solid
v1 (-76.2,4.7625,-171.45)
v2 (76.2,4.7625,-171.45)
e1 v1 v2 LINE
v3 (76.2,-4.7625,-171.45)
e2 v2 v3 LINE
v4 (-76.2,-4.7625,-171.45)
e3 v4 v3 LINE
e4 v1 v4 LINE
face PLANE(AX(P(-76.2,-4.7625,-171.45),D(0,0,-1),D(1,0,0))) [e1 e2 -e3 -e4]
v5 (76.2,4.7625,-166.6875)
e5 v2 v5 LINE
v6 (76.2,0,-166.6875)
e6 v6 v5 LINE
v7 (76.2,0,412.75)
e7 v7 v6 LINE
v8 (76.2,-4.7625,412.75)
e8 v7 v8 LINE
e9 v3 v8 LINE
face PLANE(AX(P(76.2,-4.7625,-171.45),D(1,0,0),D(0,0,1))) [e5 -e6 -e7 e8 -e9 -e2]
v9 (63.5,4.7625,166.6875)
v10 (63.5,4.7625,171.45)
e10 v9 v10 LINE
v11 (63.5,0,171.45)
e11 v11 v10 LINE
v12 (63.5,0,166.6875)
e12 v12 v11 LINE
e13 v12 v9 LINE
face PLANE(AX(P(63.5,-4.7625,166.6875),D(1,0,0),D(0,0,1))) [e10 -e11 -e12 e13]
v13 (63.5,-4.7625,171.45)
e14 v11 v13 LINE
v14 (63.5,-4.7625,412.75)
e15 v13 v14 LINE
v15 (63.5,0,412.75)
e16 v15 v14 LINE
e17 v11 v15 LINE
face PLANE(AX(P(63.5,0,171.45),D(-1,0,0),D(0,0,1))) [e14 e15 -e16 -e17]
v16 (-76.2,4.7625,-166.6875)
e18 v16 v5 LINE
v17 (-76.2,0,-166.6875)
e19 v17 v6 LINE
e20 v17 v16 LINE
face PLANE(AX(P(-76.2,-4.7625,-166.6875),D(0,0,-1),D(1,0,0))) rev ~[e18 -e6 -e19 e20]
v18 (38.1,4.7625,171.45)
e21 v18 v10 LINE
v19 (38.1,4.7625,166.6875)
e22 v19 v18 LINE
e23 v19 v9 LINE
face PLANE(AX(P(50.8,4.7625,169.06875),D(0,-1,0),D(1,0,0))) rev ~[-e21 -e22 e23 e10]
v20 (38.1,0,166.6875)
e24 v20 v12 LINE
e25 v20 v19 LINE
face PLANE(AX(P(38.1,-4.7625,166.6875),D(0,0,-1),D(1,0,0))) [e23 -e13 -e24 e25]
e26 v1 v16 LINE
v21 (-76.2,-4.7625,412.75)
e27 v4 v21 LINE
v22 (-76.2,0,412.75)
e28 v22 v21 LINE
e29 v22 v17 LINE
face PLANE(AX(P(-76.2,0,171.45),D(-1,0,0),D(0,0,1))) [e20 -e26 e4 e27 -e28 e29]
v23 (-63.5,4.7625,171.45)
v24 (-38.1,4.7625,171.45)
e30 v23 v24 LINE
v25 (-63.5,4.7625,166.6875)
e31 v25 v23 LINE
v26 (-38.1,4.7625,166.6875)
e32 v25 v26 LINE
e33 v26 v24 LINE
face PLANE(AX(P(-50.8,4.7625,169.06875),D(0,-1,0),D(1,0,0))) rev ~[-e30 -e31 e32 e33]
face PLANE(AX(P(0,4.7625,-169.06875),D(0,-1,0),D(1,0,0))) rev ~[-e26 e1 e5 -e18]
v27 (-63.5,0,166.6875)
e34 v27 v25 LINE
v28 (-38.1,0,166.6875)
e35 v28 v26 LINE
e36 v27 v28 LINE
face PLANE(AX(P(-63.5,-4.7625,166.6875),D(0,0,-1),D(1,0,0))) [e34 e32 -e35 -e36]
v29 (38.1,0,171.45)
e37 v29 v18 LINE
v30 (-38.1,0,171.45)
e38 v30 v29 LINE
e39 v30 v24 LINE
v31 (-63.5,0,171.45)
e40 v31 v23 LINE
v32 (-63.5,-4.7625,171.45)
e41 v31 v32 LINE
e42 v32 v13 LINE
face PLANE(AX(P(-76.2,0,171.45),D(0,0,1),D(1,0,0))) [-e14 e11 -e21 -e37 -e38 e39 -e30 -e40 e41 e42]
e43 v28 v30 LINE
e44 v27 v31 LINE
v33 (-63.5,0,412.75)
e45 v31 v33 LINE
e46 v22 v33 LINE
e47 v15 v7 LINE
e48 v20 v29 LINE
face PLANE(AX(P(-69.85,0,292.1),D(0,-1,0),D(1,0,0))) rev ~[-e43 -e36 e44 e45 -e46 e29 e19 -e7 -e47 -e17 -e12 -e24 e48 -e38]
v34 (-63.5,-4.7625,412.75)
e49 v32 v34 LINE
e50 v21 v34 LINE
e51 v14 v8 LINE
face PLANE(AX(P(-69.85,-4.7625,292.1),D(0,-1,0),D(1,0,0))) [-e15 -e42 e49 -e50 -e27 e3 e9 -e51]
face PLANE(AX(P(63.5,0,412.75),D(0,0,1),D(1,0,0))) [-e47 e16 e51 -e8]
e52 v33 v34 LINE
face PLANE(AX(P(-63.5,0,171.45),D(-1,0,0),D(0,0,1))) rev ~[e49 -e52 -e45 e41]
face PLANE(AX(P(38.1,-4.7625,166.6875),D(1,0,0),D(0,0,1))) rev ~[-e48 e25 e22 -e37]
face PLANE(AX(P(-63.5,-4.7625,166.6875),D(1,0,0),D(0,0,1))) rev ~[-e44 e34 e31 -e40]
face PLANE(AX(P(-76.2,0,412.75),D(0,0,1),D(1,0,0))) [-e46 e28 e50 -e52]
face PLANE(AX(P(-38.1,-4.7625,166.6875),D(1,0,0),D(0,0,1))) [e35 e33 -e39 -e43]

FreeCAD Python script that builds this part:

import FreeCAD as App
import Part
import Sketcher
Q = App.Units.Quantity

doc = App.newDocument("Part")
body = doc.addObject("PartDesign::Body", "Body")

sketch1 = doc.addObject("Sketcher::SketchObject", "Sketch")
body.addObject(sketch1)
sketch1.AttachmentSupport = (doc.XZ_Plane, [""])
sketch1.MapMode = "FlatFace"
sketch1.addGeometry([
    Part.LineSegment(App.Vector(-76, 171, 0), App.Vector(-76, -171, 0)),
    Part.LineSegment(App.Vector(-76, -171, 0), App.Vector(76, -171, 0)),
    Part.LineSegment(App.Vector(76, -171, 0), App.Vector(76, 171, 0)),
    Part.LineSegment(App.Vector(76, 171, 0), App.Vector(-76, 171, 0)),
], False)
sketch1.addConstraint([
    Sketcher.Constraint("Coincident", 0, 2, 1, 1),
    Sketcher.Constraint("Coincident", 1, 2, 2, 1),
    Sketcher.Constraint("Coincident", 2, 2, 3, 1),
    Sketcher.Constraint("Coincident", 3, 2, 0, 1),
    Sketcher.Constraint("Vertical", 0),
    Sketcher.Constraint("Horizontal", 1),
    Sketcher.Constraint("Vertical", 2),
    Sketcher.Constraint("Horizontal", 3),
    Sketcher.Constraint("Symmetric", 0, 2, 2, 2, -1, 1),
    Sketcher.Constraint("DistanceX", 1, 1, 1, 2, Q("6 in")),
    Sketcher.Constraint("DistanceY", 0, 2, 0, 1, Q("13.5 in")),
])
pad1 = doc.addObject("PartDesign::Pad", "Pad")
body.addObject(pad1)
pad1.Profile = sketch1
pad1.Length = Q("0.1875 in")

sketch2 = doc.addObject("Sketcher::SketchObject", "Sketch001")
body.addObject(sketch2)
sketch2.AttachmentSupport = (doc.XZ_Plane, [""])
sketch2.MapMode = "FlatFace"
sketch2.AttachmentOffset = App.Placement(App.Vector(0, 0, 0.1875 * 25.4), App.Rotation())
sketch2.addGeometry([
    Part.LineSegment(App.Vector(-63.5, 171.4, 0), App.Vector(-63.5, 166.7, 0)),
    Part.LineSegment(App.Vector(-63.5, 166.7, 0), App.Vector(-38.1, 166.7, 0)),
    Part.LineSegment(App.Vector(-38.1, 166.7, 0), App.Vector(-38.1, 171.4, 0)),
    Part.LineSegment(App.Vector(-38.1, 171.4, 0), App.Vector(-63.5, 171.4, 0)),
    Part.LineSegment(App.Vector(38.1, 171.4, 0), App.Vector(38.1, 166.7, 0)),
    Part.LineSegment(App.Vector(38.1, 166.7, 0), App.Vector(63.5, 166.7, 0)),
    Part.LineSegment(App.Vector(63.5, 166.7, 0), App.Vector(63.5, 171.4, 0)),
    Part.LineSegment(App.Vector(63.5, 171.4, 0), App.Vector(38.1, 171.4, 0)),
], False)
sketch2.addConstraint([
    Sketcher.Constraint("Coincident", 0, 2, 1, 1),
    Sketcher.Constraint("Coincident", 1, 2, 2, 1),
    Sketcher.Constraint("Coincident", 2, 2, 3, 1),
    Sketcher.Constraint("Coincident", 3, 2, 0, 1),
    Sketcher.Constraint("Coincident", 4, 2, 5, 1),
    Sketcher.Constraint("Coincident", 5, 2, 6, 1),
    Sketcher.Constraint("Coincident", 6, 2, 7, 1),
    Sketcher.Constraint("Coincident", 7, 2, 4, 1),
    Sketcher.Constraint("Vertical", 0),
    Sketcher.Constraint("Horizontal", 1),
    Sketcher.Constraint("Vertical", 2),
    Sketcher.Constraint("Horizontal", 3),
    Sketcher.Constraint("Vertical", 4),
    Sketcher.Constraint("Horizontal", 5),
    Sketcher.Constraint("Vertical", 6),
    Sketcher.Constraint("Horizontal", 7),
    Sketcher.Constraint("Symmetric", 1, 2, 4, 2, -2),
    Sketcher.Constraint("Symmetric", 3, 2, 6, 2, -2),
    Sketcher.Constraint("DistanceX", 1, 1, 1, 2, Q("1 in")),
    Sketcher.Constraint("DistanceX", 1, 2, 4, 2, Q("3 in")),
    Sketcher.Constraint("DistanceY", 0, 2, 0, 1, Q("0.1875 in")),
    Sketcher.Constraint("DistanceY", -1, 1, 2, 2, Q("6.75 in")),
])
pad2 = doc.addObject("PartDesign::Pad", "Pad001")
body.addObject(pad2)
pad2.Profile = sketch2
pad2.Length = Q("0.375 in")
pad2.Reversed = True

sketch3 = doc.addObject("Sketcher::SketchObject", "Sketch002")
body.addObject(sketch3)
sketch3.AttachmentSupport = (doc.XZ_Plane, [""])
sketch3.MapMode = "FlatFace"
sketch3.AttachmentOffset = App.Placement(App.Vector(0, 0, 0.1875 * 25.4), App.Rotation())
sketch3.addGeometry([
    Part.LineSegment(App.Vector(-76.2, -166.7, 0), App.Vector(-76.2, -171.4, 0)),
    Part.LineSegment(App.Vector(-76.2, -171.4, 0), App.Vector(76.2, -171.4, 0)),
    Part.LineSegment(App.Vector(76.2, -171.4, 0), App.Vector(76.2, -166.7, 0)),
    Part.LineSegment(App.Vector(76.2, -166.7, 0), App.Vector(-76.2, -166.7, 0)),
], False)
sketch3.addConstraint([
    Sketcher.Constraint("Coincident", 0, 2, 1, 1),
    Sketcher.Constraint("Coincident", 1, 2, 2, 1),
    Sketcher.Constraint("Coincident", 2, 2, 3, 1),
    Sketcher.Constraint("Coincident", 3, 2, 0, 1),
    Sketcher.Constraint("Vertical", 0),
    Sketcher.Constraint("Horizontal", 1),
    Sketcher.Constraint("Vertical", 2),
    Sketcher.Constraint("Horizontal", 3),
    Sketcher.Constraint("DistanceX", 1, 1, 1, 2, Q("6 in")),
    Sketcher.Constraint("DistanceX", 0, 2, -1, 1, Q("3 in")),
    Sketcher.Constraint("DistanceY", 0, 2, 0, 1, Q("0.1875 in")),
    Sketcher.Constraint("DistanceY", 0, 2, -1, 1, Q("6.75 in")),
])
pad3 = doc.addObject("PartDesign::Pad", "Pad002")
body.addObject(pad3)
pad3.Profile = sketch3
pad3.Length = Q("0.375 in")
pad3.Reversed = True

sketch4 = doc.addObject("Sketcher::SketchObject", "Sketch003")
body.addObject(sketch4)
sketch4.AttachmentSupport = (doc.XZ_Plane, [""])
sketch4.MapMode = "FlatFace"
sketch4.addGeometry([
    Part.LineSegment(App.Vector(-76, 413, 0), App.Vector(-76, 171, 0)),
    Part.LineSegment(App.Vector(-76, 171, 0), App.Vector(-64, 171, 0)),
    Part.LineSegment(App.Vector(-64, 171, 0), App.Vector(-64, 413, 0)),
    Part.LineSegment(App.Vector(-64, 413, 0), App.Vector(-76, 413, 0)),
    Part.LineSegment(App.Vector(64, 413, 0), App.Vector(64, 171, 0)),
    Part.LineSegment(App.Vector(64, 171, 0), App.Vector(76, 171, 0)),
    Part.LineSegment(App.Vector(76, 171, 0), App.Vector(76, 413, 0)),
    Part.LineSegment(App.Vector(76, 413, 0), App.Vector(64, 413, 0)),
], False)
sketch4.addConstraint([
    Sketcher.Constraint("Coincident", 0, 2, 1, 1),
    Sketcher.Constraint("Coincident", 1, 2, 2, 1),
    Sketcher.Constraint("Coincident", 2, 2, 3, 1),
    Sketcher.Constraint("Coincident", 3, 2, 0, 1),
    Sketcher.Constraint("Coincident", 4, 2, 5, 1),
    Sketcher.Constraint("Coincident", 5, 2, 6, 1),
    Sketcher.Constraint("Coincident", 6, 2, 7, 1),
    Sketcher.Constraint("Coincident", 7, 2, 4, 1),
    Sketcher.Constraint("Vertical", 0),
    Sketcher.Constraint("Horizontal", 1),
    Sketcher.Constraint("Vertical", 2),
    Sketcher.Constraint("Horizontal", 3),
    Sketcher.Constraint("Vertical", 4),
    Sketcher.Constraint("Horizontal", 5),
    Sketcher.Constraint("Vertical", 6),
    Sketcher.Constraint("Horizontal", 7),
    Sketcher.Constraint("Symmetric", 1, 2, 4, 2, -2),
    Sketcher.Constraint("Symmetric", 3, 2, 6, 2, -2),
    Sketcher.Constraint("DistanceX", 1, 1, 1, 2, Q("0.5 in")),
    Sketcher.Constraint("DistanceY", 0, 2, 0, 1, Q("9.5 in")),
    Sketcher.Constraint("DistanceX", 0, 2, -1, 1, Q("3 in")),
    Sketcher.Constraint("DistanceY", -1, 1, 0, 2, Q("6.75 in")),
])
pad4 = doc.addObject("PartDesign::Pad", "Pad003")
body.addObject(pad4)
pad4.Profile = sketch4
pad4.Length = Q("0.1875 in")

doc.recompute()
